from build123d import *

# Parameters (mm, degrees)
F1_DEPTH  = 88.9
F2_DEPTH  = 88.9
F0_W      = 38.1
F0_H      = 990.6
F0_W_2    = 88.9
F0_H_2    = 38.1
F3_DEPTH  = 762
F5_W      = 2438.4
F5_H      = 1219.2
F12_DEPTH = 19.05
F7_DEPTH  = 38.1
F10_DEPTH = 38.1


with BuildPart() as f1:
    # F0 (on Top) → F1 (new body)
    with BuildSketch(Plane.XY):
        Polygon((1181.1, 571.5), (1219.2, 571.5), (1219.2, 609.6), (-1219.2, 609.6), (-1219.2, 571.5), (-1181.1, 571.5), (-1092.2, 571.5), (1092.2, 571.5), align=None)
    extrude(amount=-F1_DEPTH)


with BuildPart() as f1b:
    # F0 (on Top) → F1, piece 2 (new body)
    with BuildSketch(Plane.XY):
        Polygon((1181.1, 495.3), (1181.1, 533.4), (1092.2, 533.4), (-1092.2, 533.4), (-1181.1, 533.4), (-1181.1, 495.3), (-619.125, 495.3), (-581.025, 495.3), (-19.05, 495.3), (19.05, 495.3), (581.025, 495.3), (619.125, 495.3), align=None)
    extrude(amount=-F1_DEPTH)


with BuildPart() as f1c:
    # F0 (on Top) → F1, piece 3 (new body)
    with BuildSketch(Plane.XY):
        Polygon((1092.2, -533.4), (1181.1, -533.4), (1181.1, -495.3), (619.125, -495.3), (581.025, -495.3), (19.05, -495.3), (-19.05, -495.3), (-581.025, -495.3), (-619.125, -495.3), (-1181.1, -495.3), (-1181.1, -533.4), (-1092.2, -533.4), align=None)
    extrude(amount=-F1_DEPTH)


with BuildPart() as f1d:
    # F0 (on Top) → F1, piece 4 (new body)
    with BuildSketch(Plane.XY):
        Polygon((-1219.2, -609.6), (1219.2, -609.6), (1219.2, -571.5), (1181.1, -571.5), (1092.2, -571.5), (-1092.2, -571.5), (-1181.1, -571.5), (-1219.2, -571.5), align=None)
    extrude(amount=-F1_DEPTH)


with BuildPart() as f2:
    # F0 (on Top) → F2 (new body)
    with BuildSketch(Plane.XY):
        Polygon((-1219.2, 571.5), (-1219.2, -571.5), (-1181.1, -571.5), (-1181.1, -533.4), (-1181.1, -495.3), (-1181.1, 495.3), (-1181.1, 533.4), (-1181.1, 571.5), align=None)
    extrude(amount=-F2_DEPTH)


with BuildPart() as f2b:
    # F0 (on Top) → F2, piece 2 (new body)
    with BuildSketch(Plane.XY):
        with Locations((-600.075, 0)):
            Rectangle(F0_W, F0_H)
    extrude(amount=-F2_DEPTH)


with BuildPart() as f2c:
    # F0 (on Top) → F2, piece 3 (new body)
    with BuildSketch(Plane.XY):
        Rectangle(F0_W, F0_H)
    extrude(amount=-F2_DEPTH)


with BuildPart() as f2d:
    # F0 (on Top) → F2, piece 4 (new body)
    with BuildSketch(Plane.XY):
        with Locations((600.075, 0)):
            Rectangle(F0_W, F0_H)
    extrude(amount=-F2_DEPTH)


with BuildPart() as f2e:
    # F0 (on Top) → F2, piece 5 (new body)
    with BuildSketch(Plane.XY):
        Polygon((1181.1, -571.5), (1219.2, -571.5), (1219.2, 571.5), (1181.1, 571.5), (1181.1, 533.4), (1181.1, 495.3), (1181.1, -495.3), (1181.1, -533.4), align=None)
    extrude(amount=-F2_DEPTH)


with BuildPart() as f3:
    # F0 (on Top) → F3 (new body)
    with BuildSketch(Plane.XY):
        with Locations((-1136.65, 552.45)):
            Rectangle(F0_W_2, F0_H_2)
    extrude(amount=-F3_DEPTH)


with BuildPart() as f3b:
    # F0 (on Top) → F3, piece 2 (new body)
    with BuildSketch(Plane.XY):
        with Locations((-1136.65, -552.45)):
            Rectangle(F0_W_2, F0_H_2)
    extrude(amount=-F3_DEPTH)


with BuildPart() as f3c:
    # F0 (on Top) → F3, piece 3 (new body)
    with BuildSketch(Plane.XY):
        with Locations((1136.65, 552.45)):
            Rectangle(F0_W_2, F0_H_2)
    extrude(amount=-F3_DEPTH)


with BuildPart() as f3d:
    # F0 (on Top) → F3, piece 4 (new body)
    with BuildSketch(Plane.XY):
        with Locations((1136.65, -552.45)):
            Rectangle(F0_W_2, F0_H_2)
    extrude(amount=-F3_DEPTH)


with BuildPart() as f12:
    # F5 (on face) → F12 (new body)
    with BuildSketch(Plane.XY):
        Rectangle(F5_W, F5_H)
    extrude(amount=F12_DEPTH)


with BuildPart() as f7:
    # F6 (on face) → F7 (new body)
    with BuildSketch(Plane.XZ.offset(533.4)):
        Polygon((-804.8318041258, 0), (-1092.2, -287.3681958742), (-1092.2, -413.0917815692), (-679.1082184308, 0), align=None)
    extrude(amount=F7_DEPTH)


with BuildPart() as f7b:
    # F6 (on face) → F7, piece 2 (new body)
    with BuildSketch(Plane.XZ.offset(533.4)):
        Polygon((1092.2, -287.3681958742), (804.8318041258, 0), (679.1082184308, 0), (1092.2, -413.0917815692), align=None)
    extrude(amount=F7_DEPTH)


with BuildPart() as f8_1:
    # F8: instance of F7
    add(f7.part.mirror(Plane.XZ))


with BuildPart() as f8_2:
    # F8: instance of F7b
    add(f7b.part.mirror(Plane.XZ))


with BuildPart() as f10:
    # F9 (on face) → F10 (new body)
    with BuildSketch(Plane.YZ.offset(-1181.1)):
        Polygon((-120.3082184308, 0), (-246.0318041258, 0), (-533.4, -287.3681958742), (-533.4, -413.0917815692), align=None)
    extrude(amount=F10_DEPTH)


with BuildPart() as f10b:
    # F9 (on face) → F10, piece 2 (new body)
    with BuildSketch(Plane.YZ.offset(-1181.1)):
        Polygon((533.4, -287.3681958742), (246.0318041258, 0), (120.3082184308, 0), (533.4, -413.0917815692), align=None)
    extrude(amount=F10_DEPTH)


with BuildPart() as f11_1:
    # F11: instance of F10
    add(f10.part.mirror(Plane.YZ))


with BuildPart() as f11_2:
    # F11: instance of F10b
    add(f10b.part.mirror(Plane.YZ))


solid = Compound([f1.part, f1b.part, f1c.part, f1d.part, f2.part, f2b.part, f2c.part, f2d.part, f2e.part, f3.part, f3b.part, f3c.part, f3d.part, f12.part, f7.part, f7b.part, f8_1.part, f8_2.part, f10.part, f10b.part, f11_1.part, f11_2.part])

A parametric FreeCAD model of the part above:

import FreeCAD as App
import Part
import Sketcher

V = App.Vector
Q = App.Units.Quantity

doc = App.newDocument("Part")
body = doc.addObject("PartDesign::Body", "Body")

# Sketch on XY plane
sketch1 = body.newObject("Sketcher::SketchObject", "Sketch")
sketch1.AttachmentSupport = (doc.getObject("XY_Plane"), [""])
sketch1.MapMode = "FlatFace"
sketch1.addGeometry([
    Part.LineSegment(V(1219.2, 571.5, 0), V(1219.2, 609.6, 0)),
    Part.LineSegment(V(1219.2, 609.6, 0), V(-1219.2, 609.6, 0)),
    Part.LineSegment(V(-1219.2, 609.6, 0), V(-1219.2, 571.5, 0)),
    Part.LineSegment(V(-1219.2, 571.5, 0), V(1219.2, 571.5, 0)),
], False)
sketch1.addConstraint([
    Sketcher.Constraint("Coincident", 0, 2, 1, 1),
    Sketcher.Constraint("Coincident", 1, 2, 2, 1),
    Sketcher.Constraint("Coincident", 2, 2, 3, 1),
    Sketcher.Constraint("Coincident", 3, 2, 0, 1),
    Sketcher.Constraint("Vertical", 0),
    Sketcher.Constraint("Horizontal", 1),
    Sketcher.Constraint("Vertical", 2),
    Sketcher.Constraint("Horizontal", 3),
    Sketcher.Constraint("DistanceX", 1, 2, 1, 1, Q("96 in")),
    Sketcher.Constraint("DistanceY", 0, 1, 0, 2, Q("1.5 in")),
    Sketcher.Constraint("DistanceX", -1, 1, 0, 2, Q("48 in")),
    Sketcher.Constraint("DistanceY", -1, 1, 0, 2, Q("24 in")),
])
pad1 = body.newObject("PartDesign::Pad", "Pad")
pad1.Profile = sketch1
pad1.Length = Q("3.5 in")
pad1.Reversed = True
body2 = doc.addObject("PartDesign::Body", "Body001")

# Sketch on XY plane
sketch2 = body2.newObject("Sketcher::SketchObject", "Sketch001")
sketch2.AttachmentSupport = (doc.getObject("XY_Plane001"), [""])
sketch2.MapMode = "FlatFace"
sketch2.addGeometry([
    Part.LineSegment(V(1181.1, 495.3, 0), V(1181.1, 533.4, 0)),
    Part.LineSegment(V(1181.1, 533.4, 0), V(-1181.1, 533.4, 0)),
    Part.LineSegment(V(-1181.1, 533.4, 0), V(-1181.1, 495.3, 0)),
    Part.LineSegment(V(-1181.1, 495.3, 0), V(1181.1, 495.3, 0)),
], False)
sketch2.addConstraint([
    Sketcher.Constraint("Coincident", 0, 2, 1, 1),
    Sketcher.Constraint("Coincident", 1, 2, 2, 1),
    Sketcher.Constraint("Coincident", 2, 2, 3, 1),
    Sketcher.Constraint("Coincident", 3, 2, 0, 1),
    Sketcher.Constraint("Vertical", 0),
    Sketcher.Constraint("Horizontal", 1),
    Sketcher.Constraint("Vertical", 2),
    Sketcher.Constraint("Horizontal", 3),
    Sketcher.Constraint("DistanceX", 1, 2, 1, 1, Q("93 in")),
    Sketcher.Constraint("DistanceY", 0, 1, 0, 2, Q("1.5 in")),
    Sketcher.Constraint("DistanceY", -1, 1, 0, 2, Q("21 in")),
    Sketcher.Constraint("DistanceX", -1, 1, 0, 2, Q("46.5 in")),
])
pad2 = body2.newObject("PartDesign::Pad", "Pad001")
pad2.Profile = sketch2
pad2.Length = Q("3.5 in")
pad2.Reversed = True
body3 = doc.addObject("PartDesign::Body", "Body002")

# Sketch on XY plane
sketch3 = body3.newObject("Sketcher::SketchObject", "Sketch002")
sketch3.AttachmentSupport = (doc.getObject("XY_Plane002"), [""])
sketch3.MapMode = "FlatFace"
sketch3.addGeometry([
    Part.LineSegment(V(1181.1, -533.4, 0), V(1181.1, -495.3, 0)),
    Part.LineSegment(V(1181.1, -495.3, 0), V(-1181.1, -495.3, 0)),
    Part.LineSegment(V(-1181.1, -495.3, 0), V(-1181.1, -533.4, 0)),
    Part.LineSegment(V(-1181.1, -533.4, 0), V(1181.1, -533.4, 0)),
], False)
sketch3.addConstraint([
    Sketcher.Constraint("Coincident", 0, 2, 1, 1),
    Sketcher.Constraint("Coincident", 1, 2, 2, 1),
    Sketcher.Constraint("Coincident", 2, 2, 3, 1),
    Sketcher.Constraint("Coincident", 3, 2, 0, 1),
    Sketcher.Constraint("Vertical", 0),
    Sketcher.Constraint("Horizontal", 1),
    Sketcher.Constraint("Vertical", 2),
    Sketcher.Constraint("Horizontal", 3),
    Sketcher.Constraint("DistanceX", 1, 2, 1, 1, Q("93 in")),
    Sketcher.Constraint("DistanceY", 0, 1, 0, 2, Q("1.5 in")),
    Sketcher.Constraint("DistanceY", 2, 2, -1, 1, Q("21 in")),
    Sketcher.Constraint("DistanceX", -1, 1, 0, 2, Q("46.5 in")),
])
pad3 = body3.newObject("PartDesign::Pad", "Pad002")
pad3.Profile = sketch3
pad3.Length = Q("3.5 in")
pad3.Reversed = True
body4 = doc.addObject("PartDesign::Body", "Body003")

# Sketch on XY plane
sketch4 = body4.newObject("Sketcher::SketchObject", "Sketch003")
sketch4.AttachmentSupport = (doc.getObject("XY_Plane003"), [""])
sketch4.MapMode = "FlatFace"
sketch4.addGeometry([
    Part.LineSegment(V(-1219.2, -609.6, 0), V(1219.2, -609.6, 0)),
    Part.LineSegment(V(1219.2, -609.6, 0), V(1219.2, -571.5, 0)),
    Part.LineSegment(V(1219.2, -571.5, 0), V(-1219.2, -571.5, 0)),
    Part.LineSegment(V(-1219.2, -571.5, 0), V(-1219.2, -609.6, 0)),
], False)
sketch4.addConstraint([
    Sketcher.Constraint("Coincident", 0, 2, 1, 1),
    Sketcher.Constraint("Coincident", 1, 2, 2, 1),
    Sketcher.Constraint("Coincident", 2, 2, 3, 1),
    Sketcher.Constraint("Coincident", 3, 2, 0, 1),
    Sketcher.Constraint("Horizontal", 0),
    Sketcher.Constraint("Vertical", 1),
    Sketcher.Constraint("Horizontal", 2),
    Sketcher.Constraint("Vertical", 3),
    Sketcher.Constraint("DistanceX", 0, 1, 0, 2, Q("96 in")),
    Sketcher.Constraint("DistanceY", 1, 1, 1, 2, Q("1.5 in")),
    Sketcher.Constraint("DistanceX", -1, 1, 0, 2, Q("48 in")),
    Sketcher.Constraint("DistanceY", 0, 2, -1, 1, Q("24 in")),
])
pad4 = body4.newObject("PartDesign::Pad", "Pad003")
pad4.Profile = sketch4
pad4.Length = Q("3.5 in")
pad4.Reversed = True
body5 = doc.addObject("PartDesign::Body", "Body004")

# Sketch on XY plane
sketch5 = body5.newObject("Sketcher::SketchObject", "Sketch004")
sketch5.AttachmentSupport = (doc.getObject("XY_Plane004"), [""])
sketch5.MapMode = "FlatFace"
sketch5.addGeometry([
    Part.LineSegment(V(-1219.2, 571.5, 0), V(-1219.2, -571.5, 0)),
    Part.LineSegment(V(-1219.2, -571.5, 0), V(-1181.1, -571.5, 0)),
    Part.LineSegment(V(-1181.1, -571.5, 0), V(-1181.1, 571.5, 0)),
    Part.LineSegment(V(-1181.1, 571.5, 0), V(-1219.2, 571.5, 0)),
], False)
sketch5.addConstraint([
    Sketcher.Constraint("Coincident", 0, 2, 1, 1),
    Sketcher.Constraint("Coincident", 1, 2, 2, 1),
    Sketcher.Constraint("Coincident", 2, 2, 3, 1),
    Sketcher.Constraint("Coincident", 3, 2, 0, 1),
    Sketcher.Constraint("Vertical", 0),
    Sketcher.Constraint("Horizontal", 1),
    Sketcher.Constraint("Vertical", 2),
    Sketcher.Constraint("Horizontal", 3),
    Sketcher.Constraint("DistanceY", 0, 2, 0, 1, Q("45 in")),
    Sketcher.Constraint("DistanceX", 1, 1, 1, 2, Q("1.5 in")),
    Sketcher.Constraint("DistanceX", 0, 2, -1, 1, Q("48 in")),
    Sketcher.Constraint("DistanceY", 0, 2, -1, 1, Q("22.5 in")),
])
pad5 = body5.newObject("PartDesign::Pad", "Pad004")
pad5.Profile = sketch5
pad5.Length = Q("3.5 in")
pad5.Reversed = True
body6 = doc.addObject("PartDesign::Body", "Body005")

# Sketch on XY plane
sketch6 = body6.newObject("Sketcher::SketchObject", "Sketch005")
sketch6.AttachmentSupport = (doc.getObject("XY_Plane005"), [""])
sketch6.MapMode = "FlatFace"
sketch6.addGeometry([
    Part.LineSegment(V(-619.125, 495.3, 0), V(-619.125, -495.3, 0)),
    Part.LineSegment(V(-619.125, -495.3, 0), V(-581.025, -495.3, 0)),
    Part.LineSegment(V(-581.025, -495.3, 0), V(-581.025, 495.3, 0)),
    Part.LineSegment(V(-581.025, 495.3, 0), V(-619.125, 495.3, 0)),
], False)
sketch6.addConstraint([
    Sketcher.Constraint("Coincident", 0, 2, 1, 1),
    Sketcher.Constraint("Coincident", 1, 2, 2, 1),
    Sketcher.Constraint("Coincident", 2, 2, 3, 1),
    Sketcher.Constraint("Coincident", 3, 2, 0, 1),
    Sketcher.Constraint("Vertical", 0),
    Sketcher.Constraint("Horizontal", 1),
    Sketcher.Constraint("Vertical", 2),
    Sketcher.Constraint("Horizontal", 3),
    Sketcher.Constraint("DistanceY", 0, 2, 0, 1, Q("39 in")),
    Sketcher.Constraint("DistanceX", 1, 1, 1, 2, Q("1.5 in")),
    Sketcher.Constraint("DistanceY", 0, 2, -1, 1, Q("19.5 in")),
    Sketcher.Constraint("DistanceX", 0, 2, -1, 1, Q("24.375 in")),
])
pad6 = body6.newObject("PartDesign::Pad", "Pad005")
pad6.Profile = sketch6
pad6.Length = Q("3.5 in")
pad6.Reversed = True
body7 = doc.addObject("PartDesign::Body", "Body006")

# Sketch on XY plane
sketch7 = body7.newObject("Sketcher::SketchObject", "Sketch006")
sketch7.AttachmentSupport = (doc.getObject("XY_Plane006"), [""])
sketch7.MapMode = "FlatFace"
sketch7.addGeometry([
    Part.LineSegment(V(-19.05, 495.3, 0), V(-19.05, -495.3, 0)),
    Part.LineSegment(V(-19.05, -495.3, 0), V(19.05, -495.3, 0)),
    Part.LineSegment(V(19.05, -495.3, 0), V(19.05, 495.3, 0)),
    Part.LineSegment(V(19.05, 495.3, 0), V(-19.05, 495.3, 0)),
], False)
sketch7.addConstraint([
    Sketcher.Constraint("Coincident", 0, 2, 1, 1),
    Sketcher.Constraint("Coincident", 1, 2, 2, 1),
    Sketcher.Constraint("Coincident", 2, 2, 3, 1),
    Sketcher.Constraint("Coincident", 3, 2, 0, 1),
    Sketcher.Constraint("Vertical", 0),
    Sketcher.Constraint("Horizontal", 1),
    Sketcher.Constraint("Vertical", 2),
    Sketcher.Constraint("Horizontal", 3),
    Sketcher.Constraint("Symmetric", 0, 2, 2, 2, -1, 1),
    Sketcher.Constraint("DistanceY", 0, 2, 0, 1, Q("39 in")),
    Sketcher.Constraint("DistanceX", 1, 1, 1, 2, Q("1.5 in")),
])
pad7 = body7.newObject("PartDesign::Pad", "Pad006")
pad7.Profile = sketch7
pad7.Length = Q("3.5 in")
pad7.Reversed = True
body8 = doc.addObject("PartDesign::Body", "Body007")

# Sketch on XY plane
sketch8 = body8.newObject("Sketcher::SketchObject", "Sketch007")
sketch8.AttachmentSupport = (doc.getObject("XY_Plane007"), [""])
sketch8.MapMode = "FlatFace"
sketch8.addGeometry([
    Part.LineSegment(V(581.025, 495.3, 0), V(581.025, -495.3, 0)),
    Part.LineSegment(V(581.025, -495.3, 0), V(619.125, -495.3, 0)),
    Part.LineSegment(V(619.125, -495.3, 0), V(619.125, 495.3, 0)),
    Part.LineSegment(V(619.125, 495.3, 0), V(581.025, 495.3, 0)),
], False)
sketch8.addConstraint([
    Sketcher.Constraint("Coincident", 0, 2, 1, 1),
    Sketcher.Constraint("Coincident", 1, 2, 2, 1),
    Sketcher.Constraint("Coincident", 2, 2, 3, 1),
    Sketcher.Constraint("Coincident", 3, 2, 0, 1),
    Sketcher.Constraint("Vertical", 0),
    Sketcher.Constraint("Horizontal", 1),
    Sketcher.Constraint("Vertical", 2),
    Sketcher.Constraint("Horizontal", 3),
    Sketcher.Constraint("DistanceY", 0, 2, 0, 1, Q("39 in")),
    Sketcher.Constraint("DistanceX", 1, 1, 1, 2, Q("1.5 in")),
    Sketcher.Constraint("DistanceY", 0, 2, -1, 1, Q("19.5 in")),
    Sketcher.Constraint("DistanceX", -1, 1, 0, 2, Q("22.875 in")),
])
pad8 = body8.newObject("PartDesign::Pad", "Pad007")
pad8.Profile = sketch8
pad8.Length = Q("3.5 in")
pad8.Reversed = True
body9 = doc.addObject("PartDesign::Body", "Body008")

# Sketch on XY plane
sketch9 = body9.newObject("Sketcher::SketchObject", "Sketch008")
sketch9.AttachmentSupport = (doc.getObject("XY_Plane008"), [""])
sketch9.MapMode = "FlatFace"
sketch9.addGeometry([
    Part.LineSegment(V(1181.1, -571.5, 0), V(1219.2, -571.5, 0)),
    Part.LineSegment(V(1219.2, -571.5, 0), V(1219.2, 571.5, 0)),
    Part.LineSegment(V(1219.2, 571.5, 0), V(1181.1, 571.5, 0)),
    Part.LineSegment(V(1181.1, 571.5, 0), V(1181.1, -571.5, 0)),
], False)
sketch9.addConstraint([
    Sketcher.Constraint("Coincident", 0, 2, 1, 1),
    Sketcher.Constraint("Coincident", 1, 2, 2, 1),
    Sketcher.Constraint("Coincident", 2, 2, 3, 1),
    Sketcher.Constraint("Coincident", 3, 2, 0, 1),
    Sketcher.Constraint("Horizontal", 0),
    Sketcher.Constraint("Vertical", 1),
    Sketcher.Constraint("Horizontal", 2),
    Sketcher.Constraint("Vertical", 3),
    Sketcher.Constraint("DistanceY", 1, 1, 1, 2, Q("45 in")),
    Sketcher.Constraint("DistanceX", 0, 1, 0, 2, Q("1.5 in")),
    Sketcher.Constraint("DistanceX", -1, 1, 0, 2, Q("48 in")),
    Sketcher.Constraint("DistanceY", 0, 2, -1, 1, Q("22.5 in")),
])
pad9 = body9.newObject("PartDesign::Pad", "Pad008")
pad9.Profile = sketch9
pad9.Length = Q("3.5 in")
pad9.Reversed = True
body10 = doc.addObject("PartDesign::Body", "Body009")

# Sketch on XY plane
sketch10 = body10.newObject("Sketcher::SketchObject", "Sketch009")
sketch10.AttachmentSupport = (doc.getObject("XY_Plane009"), [""])
sketch10.MapMode = "FlatFace"
sketch10.addGeometry([
    Part.LineSegment(V(-1181.1, 571.5, 0), V(-1181.1, 533.4, 0)),
    Part.LineSegment(V(-1181.1, 533.4, 0), V(-1092.2, 533.4, 0)),
    Part.LineSegment(V(-1092.2, 533.4, 0), V(-1092.2, 571.5, 0)),
    Part.LineSegment(V(-1092.2, 571.5, 0), V(-1181.1, 571.5, 0)),
], False)
sketch10.addConstraint([
    Sketcher.Constraint("Coincident", 0, 2, 1, 1),
    Sketcher.Constraint("Coincident", 1, 2, 2, 1),
    Sketcher.Constraint("Coincident", 2, 2, 3, 1),
    Sketcher.Constraint("Coincident", 3, 2, 0, 1),
    Sketcher.Constraint("Vertical", 0),
    Sketcher.Constraint("Horizontal", 1),
    Sketcher.Constraint("Vertical", 2),
    Sketcher.Constraint("Horizontal", 3),
    Sketcher.Constraint("DistanceX", 1, 1, 1, 2, Q("3.5 in")),
    Sketcher.Constraint("DistanceY", 0, 2, 0, 1, Q("1.5 in")),
    Sketcher.Constraint("DistanceY", -1, 1, 0, 2, Q("21 in")),
    Sketcher.Constraint("DistanceX", 1, 2, -1, 1, Q("43 in")),
])
pad10 = body10.newObject("PartDesign::Pad", "Pad009")
pad10.Profile = sketch10
pad10.Length = Q("30 in")
pad10.Reversed = True
body11 = doc.addObject("PartDesign::Body", "Body010")

# Sketch on XY plane
sketch11 = body11.newObject("Sketcher::SketchObject", "Sketch010")
sketch11.AttachmentSupport = (doc.getObject("XY_Plane010"), [""])
sketch11.MapMode = "FlatFace"
sketch11.addGeometry([
    Part.LineSegment(V(-1181.1, -533.4, 0), V(-1181.1, -571.5, 0)),
    Part.LineSegment(V(-1181.1, -571.5, 0), V(-1092.2, -571.5, 0)),
    Part.LineSegment(V(-1092.2, -571.5, 0), V(-1092.2, -533.4, 0)),
    Part.LineSegment(V(-1092.2, -533.4, 0), V(-1181.1, -533.4, 0)),
], False)
sketch11.addConstraint([
    Sketcher.Constraint("Coincident", 0, 2, 1, 1),
    Sketcher.Constraint("Coincident", 1, 2, 2, 1),
    Sketcher.Constraint("Coincident", 2, 2, 3, 1),
    Sketcher.Constraint("Coincident", 3, 2, 0, 1),
    Sketcher.Constraint("Vertical", 0),
    Sketcher.Constraint("Horizontal", 1),
    Sketcher.Constraint("Vertical", 2),
    Sketcher.Constraint("Horizontal", 3),
    Sketcher.Constraint("DistanceX", 1, 1, 1, 2, Q("3.5 in")),
    Sketcher.Constraint("DistanceY", 0, 2, 0, 1, Q("1.5 in")),
    Sketcher.Constraint("DistanceX", 1, 2, -1, 1, Q("43 in")),
    Sketcher.Constraint("DistanceY", 2, 2, -1, 1, Q("21 in")),
])
pad11 = body11.newObject("PartDesign::Pad", "Pad010")
pad11.Profile = sketch11
pad11.Length = Q("30 in")
pad11.Reversed = True
body12 = doc.addObject("PartDesign::Body", "Body011")

# Sketch on XY plane
sketch12 = body12.newObject("Sketcher::SketchObject", "Sketch011")
sketch12.AttachmentSupport = (doc.getObject("XY_Plane011"), [""])
sketch12.MapMode = "FlatFace"
sketch12.addGeometry([
    Part.LineSegment(V(1092.2, 571.5, 0), V(1092.2, 533.4, 0)),
    Part.LineSegment(V(1092.2, 533.4, 0), V(1181.1, 533.4, 0)),
    Part.LineSegment(V(1181.1, 533.4, 0), V(1181.1, 571.5, 0)),
    Part.LineSegment(V(1181.1, 571.5, 0), V(1092.2, 571.5, 0)),
], False)
sketch12.addConstraint([
    Sketcher.Constraint("Coincident", 0, 2, 1, 1),
    Sketcher.Constraint("Coincident", 1, 2, 2, 1),
    Sketcher.Constraint("Coincident", 2, 2, 3, 1),
    Sketcher.Constraint("Coincident", 3, 2, 0, 1),
    Sketcher.Constraint("Vertical", 0),
    Sketcher.Constraint("Horizontal", 1),
    Sketcher.Constraint("Vertical", 2),
    Sketcher.Constraint("Horizontal", 3),
    Sketcher.Constraint("DistanceX", 1, 1, 1, 2, Q("3.5 in")),
    Sketcher.Constraint("DistanceY", 0, 2, 0, 1, Q("1.5 in")),
    Sketcher.Constraint("DistanceX", -1, 1, 0, 2, Q("43 in")),
    Sketcher.Constraint("DistanceY", -1, 1, 0, 2, Q("21 in")),
])
pad12 = body12.newObject("PartDesign::Pad", "Pad011")
pad12.Profile = sketch12
pad12.Length = Q("30 in")
pad12.Reversed = True
body13 = doc.addObject("PartDesign::Body", "Body012")

# Sketch on XY plane
sketch13 = body13.newObject("Sketcher::SketchObject", "Sketch012")
sketch13.AttachmentSupport = (doc.getObject("XY_Plane012"), [""])
sketch13.MapMode = "FlatFace"
sketch13.addGeometry([
    Part.LineSegment(V(1092.2, -533.4, 0), V(1092.2, -571.5, 0)),
    Part.LineSegment(V(1092.2, -571.5, 0), V(1181.1, -571.5, 0)),
    Part.LineSegment(V(1181.1, -571.5, 0), V(1181.1, -533.4, 0)),
    Part.LineSegment(V(1181.1, -533.4, 0), V(1092.2, -533.4, 0)),
], False)
sketch13.addConstraint([
    Sketcher.Constraint("Coincident", 0, 2, 1, 1),
    Sketcher.Constraint("Coincident", 1, 2, 2, 1),
    Sketcher.Constraint("Coincident", 2, 2, 3, 1),
    Sketcher.Constraint("Coincident", 3, 2, 0, 1),
    Sketcher.Constraint("Vertical", 0),
    Sketcher.Constraint("Horizontal", 1),
    Sketcher.Constraint("Vertical", 2),
    Sketcher.Constraint("Horizontal", 3),
    Sketcher.Constraint("DistanceX", 1, 1, 1, 2, Q("3.5 in")),
    Sketcher.Constraint("DistanceY", 0, 2, 0, 1, Q("1.5 in")),
    Sketcher.Constraint("DistanceX", -1, 1, 0, 2, Q("43 in")),
    Sketcher.Constraint("DistanceY", 2, 2, -1, 1, Q("21 in")),
])
pad13 = body13.newObject("PartDesign::Pad", "Pad012")
pad13.Profile = sketch13
pad13.Length = Q("30 in")
pad13.Reversed = True
body14 = doc.addObject("PartDesign::Body", "Body013")

# Sketch on XY plane
sketch14 = body14.newObject("Sketcher::SketchObject", "Sketch013")
sketch14.AttachmentSupport = (doc.getObject("XY_Plane013"), [""])
sketch14.MapMode = "FlatFace"
sketch14.addGeometry([
    Part.LineSegment(V(-1219.2, 609.6, 0), V(-1219.2, -609.6, 0)),
    Part.LineSegment(V(-1219.2, -609.6, 0), V(1219.2, -609.6, 0)),
    Part.LineSegment(V(1219.2, -609.6, 0), V(1219.2, 609.6, 0)),
    Part.LineSegment(V(1219.2, 609.6, 0), V(-1219.2, 609.6, 0)),
], False)
sketch14.addConstraint([
    Sketcher.Constraint("Coincident", 0, 2, 1, 1),
    Sketcher.Constraint("Coincident", 1, 2, 2, 1),
    Sketcher.Constraint("Coincident", 2, 2, 3, 1),
    Sketcher.Constraint("Coincident", 3, 2, 0, 1),
    Sketcher.Constraint("Vertical", 0),
    Sketcher.Constraint("Horizontal", 1),
    Sketcher.Constraint("Vertical", 2),
    Sketcher.Constraint("Horizontal", 3),
    Sketcher.Constraint("Symmetric", 0, 2, 2, 2, -1, 1),
    Sketcher.Constraint("DistanceX", 1, 1, 1, 2, Q("96 in")),
    Sketcher.Constraint("DistanceY", 0, 2, 0, 1, Q("48 in")),
])
pad14 = body14.newObject("PartDesign::Pad", "Pad013")
pad14.Profile = sketch14
pad14.Length = Q("0.75 in")
body15 = doc.addObject("PartDesign::Body", "Body014")

# Sketch on XZ plane
sketch15 = body15.newObject("Sketcher::SketchObject", "Sketch014")
sketch15.AttachmentSupport = (doc.getObject("XZ_Plane014"), [""])
sketch15.MapMode = "FlatFace"
sketch15.AttachmentOffset = App.Placement(V(0, 0, 21 * 25.4), App.Rotation())
sketch15.addGeometry([
    Part.LineSegment(V(-804.831804, 0, 0), V(-1092.2, -287.368196, 0)),
    Part.LineSegment(V(-1092.2, -287.368196, 0), V(-1092.2, -413.091782, 0)),
    Part.LineSegment(V(-1092.2, -413.091782, 0), V(-679.108218, 0, 0)),
    Part.LineSegment(V(-679.108218, 0, 0), V(-804.831804, 0, 0)),
], False)
sketch15.addConstraint([
    Sketcher.Constraint("Coincident", 0, 2, 1, 1),
    Sketcher.Constraint("Coincident", 1, 2, 2, 1),
    Sketcher.Constraint("Coincident", 2, 2, 3, 1),
    Sketcher.Constraint("Coincident", 3, 2, 0, 1),
    Sketcher.Constraint("Vertical", 1),
    Sketcher.Constraint("Horizontal", 3),
    Sketcher.Constraint("PointOnObject", 2, 2, -1),
    Sketcher.Constraint("Parallel", 0, 2),
    Sketcher.Constraint("Equal", 3, 1),
    Sketcher.Constraint("Distance", 0, Q("16 in")),
    Sketcher.Constraint("Distance", 2, Q("23 in")),
    Sketcher.Constraint("DistanceX", 0, 2, -1, 1, Q("43 in")),
])
pad15 = body15.newObject("PartDesign::Pad", "Pad014")
pad15.Profile = sketch15
pad15.Length = Q("1.5 in")
body16 = doc.addObject("PartDesign::Body", "Body015")

# Sketch on XZ plane
sketch16 = body16.newObject("Sketcher::SketchObject", "Sketch015")
sketch16.AttachmentSupport = (doc.getObject("XZ_Plane015"), [""])
sketch16.MapMode = "FlatFace"
sketch16.AttachmentOffset = App.Placement(V(0, 0, 21 * 25.4), App.Rotation())
sketch16.addGeometry([
    Part.LineSegment(V(1092.2, -287.368196, 0), V(804.831804, 0, 0)),
    Part.LineSegment(V(804.831804, 0, 0), V(679.108218, 0, 0)),
    Part.LineSegment(V(679.108218, 0, 0), V(1092.2, -413.091782, 0)),
    Part.LineSegment(V(1092.2, -413.091782, 0), V(1092.2, -287.368196, 0)),
], False)
sketch16.addConstraint([
    Sketcher.Constraint("Coincident", 0, 2, 1, 1),
    Sketcher.Constraint("Coincident", 1, 2, 2, 1),
    Sketcher.Constraint("Coincident", 2, 2, 3, 1),
    Sketcher.Constraint("Coincident", 3, 2, 0, 1),
    Sketcher.Constraint("Horizontal", 1),
    Sketcher.Constraint("Vertical", 3),
    Sketcher.Constraint("PointOnObject", 0, 2, -1),
    Sketcher.Constraint("Parallel", 0, 2),
    Sketcher.Constraint("Equal", 1, 3),
    Sketcher.Constraint("Distance", 0, Q("16 in")),
    Sketcher.Constraint("Distance", 2, Q("23 in")),
    Sketcher.Constraint("DistanceX", -1, 1, 2, 2, Q("43 in")),
])
pad16 = body16.newObject("PartDesign::Pad", "Pad015")
pad16.Profile = sketch16
pad16.Length = Q("1.5 in")
body17 = doc.addObject("PartDesign::Body", "Body016")
doc.recompute()

mirroring = doc.addObject("Part::Mirroring", "Mirroring")
mirroring.Source = body15
mirroring.Base = V(0, 0, 0)
mirroring.Normal = V(0, -1, 0)
body17.BaseFeature = mirroring
doc.recompute()
body18 = doc.addObject("PartDesign::Body", "Body017")
doc.recompute()

mirroring2 = doc.addObject("Part::Mirroring", "Mirroring001")
mirroring2.Source = body16
mirroring2.Base = V(0, 0, 0)
mirroring2.Normal = V(0, -1, 0)
body18.BaseFeature = mirroring2
doc.recompute()
body19 = doc.addObject("PartDesign::Body", "Body018")

# Sketch on YZ plane
sketch17 = body19.newObject("Sketcher::SketchObject", "Sketch016")
sketch17.AttachmentSupport = (doc.getObject("YZ_Plane018"), [""])
sketch17.MapMode = "FlatFace"
sketch17.AttachmentOffset = App.Placement(V(0, 0, -46.5 * 25.4), App.Rotation())
sketch17.addGeometry([
    Part.LineSegment(V(-120.308218, 0, 0), V(-246.031804, 0, 0)),
    Part.LineSegment(V(-246.031804, 0, 0), V(-533.4, -287.368196, 0)),
    Part.LineSegment(V(-533.4, -287.368196, 0), V(-533.4, -413.091782, 0)),
    Part.LineSegment(V(-533.4, -413.091782, 0), V(-120.308218, 0, 0)),
], False)
sketch17.addConstraint([
    Sketcher.Constraint("Coincident", 0, 2, 1, 1),
    Sketcher.Constraint("Coincident", 1, 2, 2, 1),
    Sketcher.Constraint("Coincident", 2, 2, 3, 1),
    Sketcher.Constraint("Coincident", 3, 2, 0, 1),
    Sketcher.Constraint("Horizontal", 0),
    Sketcher.Constraint("Vertical", 2),
    Sketcher.Constraint("PointOnObject", 0, 2, -1),
    Sketcher.Constraint("Parallel", 1, 3),
    Sketcher.Constraint("Equal", 0, 2),
    Sketcher.Constraint("Distance", 1, Q("16 in")),
    Sketcher.Constraint("Distance", 3, Q("23 in")),
    Sketcher.Constraint("DistanceX", 1, 2, -1, 1, Q("21 in")),
])
pad17 = body19.newObject("PartDesign::Pad", "Pad016")
pad17.Profile = sketch17
pad17.Length = Q("1.5 in")
body20 = doc.addObject("PartDesign::Body", "Body019")

# Sketch on YZ plane
sketch18 = body20.newObject("Sketcher::SketchObject", "Sketch017")
sketch18.AttachmentSupport = (doc.getObject("YZ_Plane019"), [""])
sketch18.MapMode = "FlatFace"
sketch18.AttachmentOffset = App.Placement(V(0, 0, -46.5 * 25.4), App.Rotation())
sketch18.addGeometry([
    Part.LineSegment(V(533.4, -287.368196, 0), V(246.031804, 0, 0)),
    Part.LineSegment(V(246.031804, 0, 0), V(120.308218, 0, 0)),
    Part.LineSegment(V(120.308218, 0, 0), V(533.4, -413.091782, 0)),
    Part.LineSegment(V(533.4, -413.091782, 0), V(533.4, -287.368196, 0)),
], False)
sketch18.addConstraint([
    Sketcher.Constraint("Coincident", 0, 2, 1, 1),
    Sketcher.Constraint("Coincident", 1, 2, 2, 1),
    Sketcher.Constraint("Coincident", 2, 2, 3, 1),
    Sketcher.Constraint("Coincident", 3, 2, 0, 1),
    Sketcher.Constraint("Horizontal", 1),
    Sketcher.Constraint("Vertical", 3),
    Sketcher.Constraint("PointOnObject", 0, 2, -1),
    Sketcher.Constraint("Parallel", 0, 2),
    Sketcher.Constraint("Equal", 1, 3),
    Sketcher.Constraint("Distance", 0, Q("16 in")),
    Sketcher.Constraint("Distance", 2, Q("23 in")),
    Sketcher.Constraint("DistanceX", -1, 1, 2, 2, Q("21 in")),
])
pad18 = body20.newObject("PartDesign::Pad", "Pad017")
pad18.Profile = sketch18
pad18.Length = Q("1.5 in")
body21 = doc.addObject("PartDesign::Body", "Body020")
doc.recompute()

mirroring3 = doc.addObject("Part::Mirroring", "Mirroring002")
mirroring3.Source = body19
mirroring3.Base = V(0, 0, 0)
mirroring3.Normal = V(1, 0, 0)
body21.BaseFeature = mirroring3
doc.recompute()
body22 = doc.addObject("PartDesign::Body", "Body021")
doc.recompute()

mirroring4 = doc.addObject("Part::Mirroring", "Mirroring003")
mirroring4.Source = body20
mirroring4.Base = V(0, 0, 0)
mirroring4.Normal = V(1, 0, 0)
body22.BaseFeature = mirroring4
doc.recompute()

doc.recompute()
